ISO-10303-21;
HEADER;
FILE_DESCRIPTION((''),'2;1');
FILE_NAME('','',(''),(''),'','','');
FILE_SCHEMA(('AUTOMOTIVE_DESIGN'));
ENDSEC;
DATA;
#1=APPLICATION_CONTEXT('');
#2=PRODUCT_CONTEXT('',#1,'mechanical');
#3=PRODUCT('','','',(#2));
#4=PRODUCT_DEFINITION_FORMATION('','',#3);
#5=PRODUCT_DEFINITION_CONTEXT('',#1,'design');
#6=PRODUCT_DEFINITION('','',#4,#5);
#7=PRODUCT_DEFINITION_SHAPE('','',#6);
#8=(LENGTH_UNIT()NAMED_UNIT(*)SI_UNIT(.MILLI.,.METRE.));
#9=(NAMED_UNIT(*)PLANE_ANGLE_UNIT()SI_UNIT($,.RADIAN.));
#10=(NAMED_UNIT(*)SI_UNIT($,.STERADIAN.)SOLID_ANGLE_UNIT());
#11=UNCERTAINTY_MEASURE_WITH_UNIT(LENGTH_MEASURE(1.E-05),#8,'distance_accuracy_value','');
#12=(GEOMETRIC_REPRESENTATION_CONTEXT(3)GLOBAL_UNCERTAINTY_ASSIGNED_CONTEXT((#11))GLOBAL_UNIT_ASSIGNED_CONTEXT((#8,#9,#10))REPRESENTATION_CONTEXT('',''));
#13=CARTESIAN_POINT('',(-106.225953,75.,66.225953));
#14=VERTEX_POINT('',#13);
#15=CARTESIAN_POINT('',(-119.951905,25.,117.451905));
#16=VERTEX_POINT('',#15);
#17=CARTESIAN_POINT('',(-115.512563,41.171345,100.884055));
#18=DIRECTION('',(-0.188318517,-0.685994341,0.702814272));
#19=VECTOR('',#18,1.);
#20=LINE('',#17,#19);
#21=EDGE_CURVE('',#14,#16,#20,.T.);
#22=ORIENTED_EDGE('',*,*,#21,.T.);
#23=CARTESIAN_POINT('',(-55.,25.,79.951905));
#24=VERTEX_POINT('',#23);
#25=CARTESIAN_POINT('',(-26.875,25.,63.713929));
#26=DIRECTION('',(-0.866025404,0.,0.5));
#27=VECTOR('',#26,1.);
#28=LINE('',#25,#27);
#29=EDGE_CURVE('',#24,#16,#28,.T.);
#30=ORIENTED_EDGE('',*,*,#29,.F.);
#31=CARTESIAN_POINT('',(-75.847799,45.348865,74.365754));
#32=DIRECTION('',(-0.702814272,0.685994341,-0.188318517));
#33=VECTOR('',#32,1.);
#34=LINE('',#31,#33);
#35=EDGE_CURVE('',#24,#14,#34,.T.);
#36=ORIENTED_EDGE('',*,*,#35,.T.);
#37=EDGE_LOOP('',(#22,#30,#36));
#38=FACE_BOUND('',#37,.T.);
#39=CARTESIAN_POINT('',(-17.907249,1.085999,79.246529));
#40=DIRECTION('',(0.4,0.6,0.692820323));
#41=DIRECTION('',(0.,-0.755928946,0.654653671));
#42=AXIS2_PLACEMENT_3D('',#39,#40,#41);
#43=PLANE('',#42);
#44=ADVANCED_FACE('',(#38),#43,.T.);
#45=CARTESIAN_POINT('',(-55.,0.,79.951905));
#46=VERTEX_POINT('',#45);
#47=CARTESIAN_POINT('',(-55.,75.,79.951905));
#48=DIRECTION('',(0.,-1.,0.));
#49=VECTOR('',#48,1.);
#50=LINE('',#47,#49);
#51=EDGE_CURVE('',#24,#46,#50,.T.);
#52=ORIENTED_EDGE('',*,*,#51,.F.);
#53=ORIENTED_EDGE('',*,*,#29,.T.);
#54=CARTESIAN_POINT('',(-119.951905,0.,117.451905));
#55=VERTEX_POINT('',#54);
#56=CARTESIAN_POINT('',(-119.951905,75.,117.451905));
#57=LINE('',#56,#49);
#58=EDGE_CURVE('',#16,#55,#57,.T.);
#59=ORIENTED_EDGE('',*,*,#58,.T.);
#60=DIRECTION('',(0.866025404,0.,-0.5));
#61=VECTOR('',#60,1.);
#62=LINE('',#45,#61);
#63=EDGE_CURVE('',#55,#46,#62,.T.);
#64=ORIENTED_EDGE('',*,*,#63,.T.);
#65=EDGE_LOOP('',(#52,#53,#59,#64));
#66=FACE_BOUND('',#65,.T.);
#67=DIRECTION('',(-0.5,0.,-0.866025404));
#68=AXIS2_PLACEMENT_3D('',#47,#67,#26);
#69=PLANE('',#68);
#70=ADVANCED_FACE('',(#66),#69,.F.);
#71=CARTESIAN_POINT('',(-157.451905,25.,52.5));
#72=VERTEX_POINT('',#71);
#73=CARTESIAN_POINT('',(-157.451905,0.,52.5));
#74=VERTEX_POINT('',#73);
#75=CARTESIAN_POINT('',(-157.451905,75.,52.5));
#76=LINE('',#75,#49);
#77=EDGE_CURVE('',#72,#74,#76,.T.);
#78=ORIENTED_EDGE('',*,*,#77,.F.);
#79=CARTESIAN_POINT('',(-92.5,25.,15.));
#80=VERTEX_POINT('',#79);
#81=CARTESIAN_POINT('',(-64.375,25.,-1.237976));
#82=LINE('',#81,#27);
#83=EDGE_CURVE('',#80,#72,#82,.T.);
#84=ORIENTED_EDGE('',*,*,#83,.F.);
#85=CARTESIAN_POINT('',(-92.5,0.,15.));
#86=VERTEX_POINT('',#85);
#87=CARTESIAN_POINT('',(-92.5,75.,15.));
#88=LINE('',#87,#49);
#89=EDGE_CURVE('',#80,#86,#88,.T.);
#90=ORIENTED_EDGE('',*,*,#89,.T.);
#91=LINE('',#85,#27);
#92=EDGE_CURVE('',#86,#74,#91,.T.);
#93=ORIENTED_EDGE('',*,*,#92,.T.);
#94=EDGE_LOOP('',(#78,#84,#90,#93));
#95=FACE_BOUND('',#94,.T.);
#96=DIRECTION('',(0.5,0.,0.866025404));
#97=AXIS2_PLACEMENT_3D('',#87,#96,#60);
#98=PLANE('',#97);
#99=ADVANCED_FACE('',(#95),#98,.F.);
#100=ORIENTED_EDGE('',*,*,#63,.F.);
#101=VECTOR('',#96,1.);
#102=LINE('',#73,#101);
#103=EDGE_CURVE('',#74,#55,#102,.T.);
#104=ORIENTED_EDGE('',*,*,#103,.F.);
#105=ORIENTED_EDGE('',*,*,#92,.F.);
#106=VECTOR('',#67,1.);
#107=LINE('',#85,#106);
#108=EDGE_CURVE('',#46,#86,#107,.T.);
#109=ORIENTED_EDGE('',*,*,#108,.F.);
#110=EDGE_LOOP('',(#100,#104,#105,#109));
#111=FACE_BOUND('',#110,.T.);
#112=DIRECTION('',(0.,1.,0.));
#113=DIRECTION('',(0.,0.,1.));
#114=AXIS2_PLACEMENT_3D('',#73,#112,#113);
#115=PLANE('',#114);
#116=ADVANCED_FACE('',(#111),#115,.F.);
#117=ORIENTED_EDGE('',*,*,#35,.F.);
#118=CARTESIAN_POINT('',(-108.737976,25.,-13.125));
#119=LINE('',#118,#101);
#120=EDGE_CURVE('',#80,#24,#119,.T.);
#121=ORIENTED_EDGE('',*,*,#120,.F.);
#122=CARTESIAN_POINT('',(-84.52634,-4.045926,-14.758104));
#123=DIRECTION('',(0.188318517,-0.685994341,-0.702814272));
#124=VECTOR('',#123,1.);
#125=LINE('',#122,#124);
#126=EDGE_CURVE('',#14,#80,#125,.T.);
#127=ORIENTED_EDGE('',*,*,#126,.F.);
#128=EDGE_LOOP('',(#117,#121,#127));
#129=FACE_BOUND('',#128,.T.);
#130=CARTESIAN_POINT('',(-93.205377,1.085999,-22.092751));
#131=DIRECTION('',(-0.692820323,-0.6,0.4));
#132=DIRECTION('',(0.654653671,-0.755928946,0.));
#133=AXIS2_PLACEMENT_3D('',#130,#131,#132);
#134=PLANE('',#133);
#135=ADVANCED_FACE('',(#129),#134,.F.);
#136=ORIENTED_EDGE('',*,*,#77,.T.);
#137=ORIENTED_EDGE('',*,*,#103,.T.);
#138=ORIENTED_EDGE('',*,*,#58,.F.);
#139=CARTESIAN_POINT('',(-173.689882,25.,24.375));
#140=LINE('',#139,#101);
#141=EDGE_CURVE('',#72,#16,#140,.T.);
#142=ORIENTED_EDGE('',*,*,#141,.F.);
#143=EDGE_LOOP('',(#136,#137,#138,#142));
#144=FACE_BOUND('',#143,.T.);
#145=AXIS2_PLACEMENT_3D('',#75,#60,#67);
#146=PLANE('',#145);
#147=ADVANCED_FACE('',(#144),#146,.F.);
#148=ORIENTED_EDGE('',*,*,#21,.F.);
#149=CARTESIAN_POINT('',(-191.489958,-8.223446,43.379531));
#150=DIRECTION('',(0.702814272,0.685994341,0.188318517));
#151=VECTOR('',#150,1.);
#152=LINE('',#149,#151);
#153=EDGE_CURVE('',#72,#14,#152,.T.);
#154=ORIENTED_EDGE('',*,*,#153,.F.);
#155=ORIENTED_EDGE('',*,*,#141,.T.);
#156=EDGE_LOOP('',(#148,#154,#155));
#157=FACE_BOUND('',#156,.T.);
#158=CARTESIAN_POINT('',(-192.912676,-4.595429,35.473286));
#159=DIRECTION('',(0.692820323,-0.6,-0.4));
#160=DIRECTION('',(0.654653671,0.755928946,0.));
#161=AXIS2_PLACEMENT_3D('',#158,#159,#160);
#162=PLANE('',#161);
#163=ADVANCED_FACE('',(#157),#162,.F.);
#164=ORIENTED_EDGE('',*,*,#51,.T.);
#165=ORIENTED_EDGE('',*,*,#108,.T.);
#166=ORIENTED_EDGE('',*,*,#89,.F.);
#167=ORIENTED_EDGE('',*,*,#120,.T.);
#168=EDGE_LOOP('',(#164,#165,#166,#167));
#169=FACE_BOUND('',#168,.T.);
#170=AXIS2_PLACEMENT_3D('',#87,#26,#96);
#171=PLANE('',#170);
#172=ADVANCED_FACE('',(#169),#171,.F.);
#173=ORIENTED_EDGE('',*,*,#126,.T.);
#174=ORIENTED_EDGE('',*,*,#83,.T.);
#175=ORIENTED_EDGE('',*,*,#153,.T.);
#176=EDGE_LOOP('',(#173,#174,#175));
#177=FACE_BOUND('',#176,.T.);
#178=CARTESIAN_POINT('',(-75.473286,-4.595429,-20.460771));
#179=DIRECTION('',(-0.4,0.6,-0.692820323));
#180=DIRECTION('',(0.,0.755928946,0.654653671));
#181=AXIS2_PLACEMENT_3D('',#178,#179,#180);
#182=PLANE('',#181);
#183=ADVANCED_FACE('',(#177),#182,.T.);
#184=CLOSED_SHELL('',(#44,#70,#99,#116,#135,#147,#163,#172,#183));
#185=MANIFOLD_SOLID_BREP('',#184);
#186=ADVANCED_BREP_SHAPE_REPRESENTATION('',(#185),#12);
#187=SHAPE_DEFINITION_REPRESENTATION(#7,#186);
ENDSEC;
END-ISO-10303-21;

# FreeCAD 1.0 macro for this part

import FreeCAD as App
import Part
import Sketcher
Q = App.Units.Quantity

doc = App.newDocument("Part")
params = doc.addObject("Spreadsheet::Sheet", "Params")
for row, (alias, value) in enumerate([
    ("sketch1_length", "75 mm"),
    ("pad1_length", "75 mm"),
    ("sketch2_height", "50 mm"),
    ("sketch2_width", "37.5 mm"),
    ("sketch3_height", "50 mm"),
    ("sketch3_width", "37.5 mm"),
], start=1):
    params.set(f"A{row}", alias)
    params.set(f"B{row}", "=" + value)
    params.setAlias(f"B{row}", alias)

body = doc.addObject("PartDesign::Body", "Body")

sketch1 = body.newObject("Sketcher::SketchObject", "Sketch")
sketch1.AttachmentSupport = (doc.getObject("XZ_Plane"), [""])
sketch1.MapMode = "FlatFace"
sketch1.addGeometry([
    Part.LineSegment(App.Vector(-55, 80, 0), App.Vector(-92, 15, 0)),
    Part.LineSegment(App.Vector(-92, 15, 0), App.Vector(-157, 52, 0)),
    Part.LineSegment(App.Vector(-157, 52, 0), App.Vector(-120, 117, 0)),
    Part.LineSegment(App.Vector(-120, 117, 0), App.Vector(-55, 80, 0)),
], False)
sketch1.addConstraint([
    Sketcher.Constraint("Coincident", 0, 2, 1, 1),
    Sketcher.Constraint("Coincident", 1, 2, 2, 1),
    Sketcher.Constraint("Coincident", 2, 2, 3, 1),
    Sketcher.Constraint("Coincident", 3, 2, 0, 1),
    Sketcher.Constraint("Perpendicular", 0, 1),
    Sketcher.Constraint("Perpendicular", 1, 2),
    Sketcher.Constraint("Perpendicular", 2, 3),
    Sketcher.Constraint("Equal", 0, 1),
    Sketcher.Constraint("Angle", 0, Q("-120 deg")),
    Sketcher.Constraint("Distance", 0, 75.0),
    Sketcher.Constraint("DistanceY", -1, 1, 0, 2, 15.0),
    Sketcher.Constraint("DistanceX", 3, 2, -1, 1, 55.0),
])
sketch1.setExpression("Constraints[9]", "Params.sketch1_length")
pad1 = body.newObject("PartDesign::Pad", "Pad")
pad1.Profile = sketch1
pad1.setExpression("Length", "Params.pad1_length")
pad1.Reversed = True

sketch2 = body.newObject("Sketcher::SketchObject", "Sketch001")
sketch2.Placement = App.Placement(App.Vector(20.870191, 0, 36.14823), App.Rotation(App.Vector(0.866025404, 0, -0.5), App.Vector(0, 1, 0), App.Vector(0.5, 0, 0.866025404), "ZXY"))
sketch2.addGeometry([
    Part.LineSegment(App.Vector(-163, 25, 0), App.Vector(-125, 75, 0)),
    Part.LineSegment(App.Vector(-125, 75, 0), App.Vector(-163, 75, 0)),
    Part.LineSegment(App.Vector(-163, 75, 0), App.Vector(-163, 25, 0)),
    Part.LineSegment(App.Vector(-88, 75, 0), App.Vector(-125, 75, 0)),
    Part.LineSegment(App.Vector(-125, 75, 0), App.Vector(-88, 25, 0)),
    Part.LineSegment(App.Vector(-88, 25, 0), App.Vector(-88, 75, 0)),
], False)
sketch2.addConstraint([
    Sketcher.Constraint("Coincident", 0, 2, 1, 1),
    Sketcher.Constraint("Coincident", 1, 2, 2, 1),
    Sketcher.Constraint("Coincident", 2, 2, 0, 1),
    Sketcher.Constraint("Coincident", 3, 2, 4, 1),
    Sketcher.Constraint("Coincident", 4, 2, 5, 1),
    Sketcher.Constraint("Coincident", 5, 2, 3, 1),
    Sketcher.Constraint("Horizontal", 1),
    Sketcher.Constraint("Vertical", 2),
    Sketcher.Constraint("Horizontal", 3),
    Sketcher.Constraint("Vertical", 5),
    Sketcher.Constraint("Coincident", 3, 2, 0, 2),
    Sketcher.Constraint("Horizontal", 2, 2, 4, 2),
    Sketcher.Constraint("Equal", 1, 3),
    Sketcher.Constraint("DistanceY", 2, 2, 2, 1, 50.0),
    Sketcher.Constraint("DistanceX", 1, 2, 1, 1, 37.5),
    Sketcher.Constraint("DistanceY", -1, 1, 0, 2, 75.0),
    Sketcher.Constraint("DistanceX", 0, 2, -1, 1, 125.10735),
])
sketch2.setExpression("Constraints[13]", "Params.sketch2_height")
sketch2.setExpression("Constraints[14]", "Params.sketch2_width")
pocket1 = body.newObject("PartDesign::Pocket", "Pocket")
pocket1.Profile = sketch2
pocket1.Type = "ThroughAll"

sketch3 = body.newObject("Sketcher::SketchObject", "Sketch002")
sketch3.Placement = App.Placement(App.Vector(-140.822096, 0, 81.303675), App.Rotation(App.Vector(0.5, 0, 0.866025404), App.Vector(0, 1, 0), App.Vector(-0.866025404, 0, 0.5), "ZXY"))
sketch3.addGeometry([
    Part.LineSegment(App.Vector(4, 75, 0), App.Vector(-33, 75, 0)),
    Part.LineSegment(App.Vector(-33, 75, 0), App.Vector(-33, 25, 0)),
    Part.LineSegment(App.Vector(-33, 25, 0), App.Vector(4, 75, 0)),
    Part.LineSegment(App.Vector(42, 25, 0), App.Vector(42, 75, 0)),
    Part.LineSegment(App.Vector(42, 75, 0), App.Vector(4, 75, 0)),
    Part.LineSegment(App.Vector(4, 75, 0), App.Vector(42, 25, 0)),
], False)
sketch3.addConstraint([
    Sketcher.Constraint("Coincident", 0, 2, 1, 1),
    Sketcher.Constraint("Coincident", 1, 2, 2, 1),
    Sketcher.Constraint("Coincident", 2, 2, 0, 1),
    Sketcher.Constraint("Coincident", 3, 2, 4, 1),
    Sketcher.Constraint("Coincident", 4, 2, 5, 1),
    Sketcher.Constraint("Coincident", 5, 2, 3, 1),
    Sketcher.Constraint("Horizontal", 0),
    Sketcher.Constraint("Vertical", 1),
    Sketcher.Constraint("Vertical", 3),
    Sketcher.Constraint("Horizontal", 4),
    Sketcher.Constraint("Coincident", 4, 2, 2, 2),
    Sketcher.Constraint("Horizontal", 1, 2, 5, 2),
    Sketcher.Constraint("Equal", 0, 4),
    Sketcher.Constraint("DistanceY", 1, 2, 1, 1, 50.0),
    Sketcher.Constraint("DistanceX", 0, 2, 0, 1, 37.5),
    Sketcher.Constraint("DistanceY", -1, 1, 0, 2, 75.0),
    Sketcher.Constraint("DistanceX", 0, 2, -1, 1, 33.259619),
])
sketch3.setExpression("Constraints[13]", "Params.sketch3_height")
sketch3.setExpression("Constraints[14]", "Params.sketch3_width")
pocket2 = body.newObject("PartDesign::Pocket", "Pocket001")
pocket2.Profile = sketch3
pocket2.Type = "ThroughAll"

doc.recompute()
